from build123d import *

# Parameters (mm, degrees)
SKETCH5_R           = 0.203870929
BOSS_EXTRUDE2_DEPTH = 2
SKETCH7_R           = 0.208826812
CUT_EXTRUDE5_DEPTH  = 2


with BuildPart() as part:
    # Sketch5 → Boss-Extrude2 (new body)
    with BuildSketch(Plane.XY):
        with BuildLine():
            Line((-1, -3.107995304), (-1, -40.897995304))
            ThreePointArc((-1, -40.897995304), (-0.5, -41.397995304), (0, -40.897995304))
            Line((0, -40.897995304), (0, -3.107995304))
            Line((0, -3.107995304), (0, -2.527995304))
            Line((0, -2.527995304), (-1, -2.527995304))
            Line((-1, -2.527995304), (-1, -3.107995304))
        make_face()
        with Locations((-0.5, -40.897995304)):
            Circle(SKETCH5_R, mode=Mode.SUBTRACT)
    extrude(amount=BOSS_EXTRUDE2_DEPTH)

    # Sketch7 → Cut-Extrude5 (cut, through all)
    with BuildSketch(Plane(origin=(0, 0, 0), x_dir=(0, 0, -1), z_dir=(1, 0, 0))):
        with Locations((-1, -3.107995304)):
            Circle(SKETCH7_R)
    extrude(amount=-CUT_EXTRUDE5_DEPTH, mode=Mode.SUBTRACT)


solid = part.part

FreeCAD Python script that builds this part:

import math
import FreeCAD as App
import Part
import Sketcher

doc = App.newDocument("Part")
body = doc.addObject("PartDesign::Body", "Body")

sketch1 = doc.addObject("Sketcher::SketchObject", "Sketch")
body.addObject(sketch1)
sketch1.AttachmentSupport = (doc.XY_Plane, [""])
sketch1.MapMode = "FlatFace"
sketch1.addGeometry(Part.ArcOfCircle(Part.Circle(App.Vector(-0.5, -40.9, 0), App.Vector(0, 0, 1), 0.5), math.radians(180), math.radians(360)), False)
sketch1.addGeometry(Part.LineSegment(App.Vector(0, -40.9, 0), App.Vector(0, -2.53, 0)), False)
sketch1.addGeometry(Part.LineSegment(App.Vector(0, -2.53, 0), App.Vector(-1, -2.53, 0)), False)
sketch1.addGeometry(Part.LineSegment(App.Vector(-1, -2.53, 0), App.Vector(-1, -40.9, 0)), False)
sketch1.addGeometry(Part.Circle(App.Vector(-0.5, -40.9, 0), App.Vector(0, 0, 1), 0.2), False)
sketch1.addConstraint(Sketcher.Constraint("Tangent", 0, 2, 1, 1))
sketch1.addConstraint(Sketcher.Constraint("Coincident", 1, 2, 2, 1))
sketch1.addConstraint(Sketcher.Constraint("Coincident", 2, 2, 3, 1))
sketch1.addConstraint(Sketcher.Constraint("Tangent", 3, 2, 0, 1))
sketch1.addConstraint(Sketcher.Constraint("Vertical", 1))
sketch1.addConstraint(Sketcher.Constraint("Horizontal", 2))
sketch1.addConstraint(Sketcher.Constraint("Vertical", 3))
sketch1.addConstraint(Sketcher.Constraint("Coincident", 4, 3, 0, 3))
sketch1.addConstraint(Sketcher.Constraint("PointOnObject", 0, 2, -2))
sketch1.addConstraint(Sketcher.Constraint("Radius", 0, 0.5))
sketch1.addConstraint(Sketcher.Constraint("DistanceY", 1, 1, 1, 2, 38.37))
sketch1.addConstraint(Sketcher.Constraint("Diameter", 4, 0.407742))
sketch1.addConstraint(Sketcher.Constraint("DistanceY", 0, 3, -1, 1, 40.897995))
pad1 = doc.addObject("PartDesign::Pad", "Pad")
body.addObject(pad1)
pad1.Profile = sketch1
pad1.Length = 2

sketch2 = doc.addObject("Sketcher::SketchObject", "Sketch001")
body.addObject(sketch2)
sketch2.AttachmentSupport = (doc.YZ_Plane, [""])
sketch2.MapMode = "FlatFace"
sketch2.addGeometry(Part.Circle(App.Vector(-3.11, 1, 0), App.Vector(0, 0, 1), 0.21), False)
sketch2.addConstraint(Sketcher.Constraint("DistanceY", -1, 1, 0, 3, 1.0))
sketch2.addConstraint(Sketcher.Constraint("Diameter", 0, 0.417654))
sketch2.addConstraint(Sketcher.Constraint("DistanceX", 0, 3, -1, 1, 3.107995))
pocket1 = doc.addObject("PartDesign::Pocket", "Pocket")
body.addObject(pocket1)
pocket1.Profile = sketch2
pocket1.Type = "ThroughAll"

doc.recompute()
